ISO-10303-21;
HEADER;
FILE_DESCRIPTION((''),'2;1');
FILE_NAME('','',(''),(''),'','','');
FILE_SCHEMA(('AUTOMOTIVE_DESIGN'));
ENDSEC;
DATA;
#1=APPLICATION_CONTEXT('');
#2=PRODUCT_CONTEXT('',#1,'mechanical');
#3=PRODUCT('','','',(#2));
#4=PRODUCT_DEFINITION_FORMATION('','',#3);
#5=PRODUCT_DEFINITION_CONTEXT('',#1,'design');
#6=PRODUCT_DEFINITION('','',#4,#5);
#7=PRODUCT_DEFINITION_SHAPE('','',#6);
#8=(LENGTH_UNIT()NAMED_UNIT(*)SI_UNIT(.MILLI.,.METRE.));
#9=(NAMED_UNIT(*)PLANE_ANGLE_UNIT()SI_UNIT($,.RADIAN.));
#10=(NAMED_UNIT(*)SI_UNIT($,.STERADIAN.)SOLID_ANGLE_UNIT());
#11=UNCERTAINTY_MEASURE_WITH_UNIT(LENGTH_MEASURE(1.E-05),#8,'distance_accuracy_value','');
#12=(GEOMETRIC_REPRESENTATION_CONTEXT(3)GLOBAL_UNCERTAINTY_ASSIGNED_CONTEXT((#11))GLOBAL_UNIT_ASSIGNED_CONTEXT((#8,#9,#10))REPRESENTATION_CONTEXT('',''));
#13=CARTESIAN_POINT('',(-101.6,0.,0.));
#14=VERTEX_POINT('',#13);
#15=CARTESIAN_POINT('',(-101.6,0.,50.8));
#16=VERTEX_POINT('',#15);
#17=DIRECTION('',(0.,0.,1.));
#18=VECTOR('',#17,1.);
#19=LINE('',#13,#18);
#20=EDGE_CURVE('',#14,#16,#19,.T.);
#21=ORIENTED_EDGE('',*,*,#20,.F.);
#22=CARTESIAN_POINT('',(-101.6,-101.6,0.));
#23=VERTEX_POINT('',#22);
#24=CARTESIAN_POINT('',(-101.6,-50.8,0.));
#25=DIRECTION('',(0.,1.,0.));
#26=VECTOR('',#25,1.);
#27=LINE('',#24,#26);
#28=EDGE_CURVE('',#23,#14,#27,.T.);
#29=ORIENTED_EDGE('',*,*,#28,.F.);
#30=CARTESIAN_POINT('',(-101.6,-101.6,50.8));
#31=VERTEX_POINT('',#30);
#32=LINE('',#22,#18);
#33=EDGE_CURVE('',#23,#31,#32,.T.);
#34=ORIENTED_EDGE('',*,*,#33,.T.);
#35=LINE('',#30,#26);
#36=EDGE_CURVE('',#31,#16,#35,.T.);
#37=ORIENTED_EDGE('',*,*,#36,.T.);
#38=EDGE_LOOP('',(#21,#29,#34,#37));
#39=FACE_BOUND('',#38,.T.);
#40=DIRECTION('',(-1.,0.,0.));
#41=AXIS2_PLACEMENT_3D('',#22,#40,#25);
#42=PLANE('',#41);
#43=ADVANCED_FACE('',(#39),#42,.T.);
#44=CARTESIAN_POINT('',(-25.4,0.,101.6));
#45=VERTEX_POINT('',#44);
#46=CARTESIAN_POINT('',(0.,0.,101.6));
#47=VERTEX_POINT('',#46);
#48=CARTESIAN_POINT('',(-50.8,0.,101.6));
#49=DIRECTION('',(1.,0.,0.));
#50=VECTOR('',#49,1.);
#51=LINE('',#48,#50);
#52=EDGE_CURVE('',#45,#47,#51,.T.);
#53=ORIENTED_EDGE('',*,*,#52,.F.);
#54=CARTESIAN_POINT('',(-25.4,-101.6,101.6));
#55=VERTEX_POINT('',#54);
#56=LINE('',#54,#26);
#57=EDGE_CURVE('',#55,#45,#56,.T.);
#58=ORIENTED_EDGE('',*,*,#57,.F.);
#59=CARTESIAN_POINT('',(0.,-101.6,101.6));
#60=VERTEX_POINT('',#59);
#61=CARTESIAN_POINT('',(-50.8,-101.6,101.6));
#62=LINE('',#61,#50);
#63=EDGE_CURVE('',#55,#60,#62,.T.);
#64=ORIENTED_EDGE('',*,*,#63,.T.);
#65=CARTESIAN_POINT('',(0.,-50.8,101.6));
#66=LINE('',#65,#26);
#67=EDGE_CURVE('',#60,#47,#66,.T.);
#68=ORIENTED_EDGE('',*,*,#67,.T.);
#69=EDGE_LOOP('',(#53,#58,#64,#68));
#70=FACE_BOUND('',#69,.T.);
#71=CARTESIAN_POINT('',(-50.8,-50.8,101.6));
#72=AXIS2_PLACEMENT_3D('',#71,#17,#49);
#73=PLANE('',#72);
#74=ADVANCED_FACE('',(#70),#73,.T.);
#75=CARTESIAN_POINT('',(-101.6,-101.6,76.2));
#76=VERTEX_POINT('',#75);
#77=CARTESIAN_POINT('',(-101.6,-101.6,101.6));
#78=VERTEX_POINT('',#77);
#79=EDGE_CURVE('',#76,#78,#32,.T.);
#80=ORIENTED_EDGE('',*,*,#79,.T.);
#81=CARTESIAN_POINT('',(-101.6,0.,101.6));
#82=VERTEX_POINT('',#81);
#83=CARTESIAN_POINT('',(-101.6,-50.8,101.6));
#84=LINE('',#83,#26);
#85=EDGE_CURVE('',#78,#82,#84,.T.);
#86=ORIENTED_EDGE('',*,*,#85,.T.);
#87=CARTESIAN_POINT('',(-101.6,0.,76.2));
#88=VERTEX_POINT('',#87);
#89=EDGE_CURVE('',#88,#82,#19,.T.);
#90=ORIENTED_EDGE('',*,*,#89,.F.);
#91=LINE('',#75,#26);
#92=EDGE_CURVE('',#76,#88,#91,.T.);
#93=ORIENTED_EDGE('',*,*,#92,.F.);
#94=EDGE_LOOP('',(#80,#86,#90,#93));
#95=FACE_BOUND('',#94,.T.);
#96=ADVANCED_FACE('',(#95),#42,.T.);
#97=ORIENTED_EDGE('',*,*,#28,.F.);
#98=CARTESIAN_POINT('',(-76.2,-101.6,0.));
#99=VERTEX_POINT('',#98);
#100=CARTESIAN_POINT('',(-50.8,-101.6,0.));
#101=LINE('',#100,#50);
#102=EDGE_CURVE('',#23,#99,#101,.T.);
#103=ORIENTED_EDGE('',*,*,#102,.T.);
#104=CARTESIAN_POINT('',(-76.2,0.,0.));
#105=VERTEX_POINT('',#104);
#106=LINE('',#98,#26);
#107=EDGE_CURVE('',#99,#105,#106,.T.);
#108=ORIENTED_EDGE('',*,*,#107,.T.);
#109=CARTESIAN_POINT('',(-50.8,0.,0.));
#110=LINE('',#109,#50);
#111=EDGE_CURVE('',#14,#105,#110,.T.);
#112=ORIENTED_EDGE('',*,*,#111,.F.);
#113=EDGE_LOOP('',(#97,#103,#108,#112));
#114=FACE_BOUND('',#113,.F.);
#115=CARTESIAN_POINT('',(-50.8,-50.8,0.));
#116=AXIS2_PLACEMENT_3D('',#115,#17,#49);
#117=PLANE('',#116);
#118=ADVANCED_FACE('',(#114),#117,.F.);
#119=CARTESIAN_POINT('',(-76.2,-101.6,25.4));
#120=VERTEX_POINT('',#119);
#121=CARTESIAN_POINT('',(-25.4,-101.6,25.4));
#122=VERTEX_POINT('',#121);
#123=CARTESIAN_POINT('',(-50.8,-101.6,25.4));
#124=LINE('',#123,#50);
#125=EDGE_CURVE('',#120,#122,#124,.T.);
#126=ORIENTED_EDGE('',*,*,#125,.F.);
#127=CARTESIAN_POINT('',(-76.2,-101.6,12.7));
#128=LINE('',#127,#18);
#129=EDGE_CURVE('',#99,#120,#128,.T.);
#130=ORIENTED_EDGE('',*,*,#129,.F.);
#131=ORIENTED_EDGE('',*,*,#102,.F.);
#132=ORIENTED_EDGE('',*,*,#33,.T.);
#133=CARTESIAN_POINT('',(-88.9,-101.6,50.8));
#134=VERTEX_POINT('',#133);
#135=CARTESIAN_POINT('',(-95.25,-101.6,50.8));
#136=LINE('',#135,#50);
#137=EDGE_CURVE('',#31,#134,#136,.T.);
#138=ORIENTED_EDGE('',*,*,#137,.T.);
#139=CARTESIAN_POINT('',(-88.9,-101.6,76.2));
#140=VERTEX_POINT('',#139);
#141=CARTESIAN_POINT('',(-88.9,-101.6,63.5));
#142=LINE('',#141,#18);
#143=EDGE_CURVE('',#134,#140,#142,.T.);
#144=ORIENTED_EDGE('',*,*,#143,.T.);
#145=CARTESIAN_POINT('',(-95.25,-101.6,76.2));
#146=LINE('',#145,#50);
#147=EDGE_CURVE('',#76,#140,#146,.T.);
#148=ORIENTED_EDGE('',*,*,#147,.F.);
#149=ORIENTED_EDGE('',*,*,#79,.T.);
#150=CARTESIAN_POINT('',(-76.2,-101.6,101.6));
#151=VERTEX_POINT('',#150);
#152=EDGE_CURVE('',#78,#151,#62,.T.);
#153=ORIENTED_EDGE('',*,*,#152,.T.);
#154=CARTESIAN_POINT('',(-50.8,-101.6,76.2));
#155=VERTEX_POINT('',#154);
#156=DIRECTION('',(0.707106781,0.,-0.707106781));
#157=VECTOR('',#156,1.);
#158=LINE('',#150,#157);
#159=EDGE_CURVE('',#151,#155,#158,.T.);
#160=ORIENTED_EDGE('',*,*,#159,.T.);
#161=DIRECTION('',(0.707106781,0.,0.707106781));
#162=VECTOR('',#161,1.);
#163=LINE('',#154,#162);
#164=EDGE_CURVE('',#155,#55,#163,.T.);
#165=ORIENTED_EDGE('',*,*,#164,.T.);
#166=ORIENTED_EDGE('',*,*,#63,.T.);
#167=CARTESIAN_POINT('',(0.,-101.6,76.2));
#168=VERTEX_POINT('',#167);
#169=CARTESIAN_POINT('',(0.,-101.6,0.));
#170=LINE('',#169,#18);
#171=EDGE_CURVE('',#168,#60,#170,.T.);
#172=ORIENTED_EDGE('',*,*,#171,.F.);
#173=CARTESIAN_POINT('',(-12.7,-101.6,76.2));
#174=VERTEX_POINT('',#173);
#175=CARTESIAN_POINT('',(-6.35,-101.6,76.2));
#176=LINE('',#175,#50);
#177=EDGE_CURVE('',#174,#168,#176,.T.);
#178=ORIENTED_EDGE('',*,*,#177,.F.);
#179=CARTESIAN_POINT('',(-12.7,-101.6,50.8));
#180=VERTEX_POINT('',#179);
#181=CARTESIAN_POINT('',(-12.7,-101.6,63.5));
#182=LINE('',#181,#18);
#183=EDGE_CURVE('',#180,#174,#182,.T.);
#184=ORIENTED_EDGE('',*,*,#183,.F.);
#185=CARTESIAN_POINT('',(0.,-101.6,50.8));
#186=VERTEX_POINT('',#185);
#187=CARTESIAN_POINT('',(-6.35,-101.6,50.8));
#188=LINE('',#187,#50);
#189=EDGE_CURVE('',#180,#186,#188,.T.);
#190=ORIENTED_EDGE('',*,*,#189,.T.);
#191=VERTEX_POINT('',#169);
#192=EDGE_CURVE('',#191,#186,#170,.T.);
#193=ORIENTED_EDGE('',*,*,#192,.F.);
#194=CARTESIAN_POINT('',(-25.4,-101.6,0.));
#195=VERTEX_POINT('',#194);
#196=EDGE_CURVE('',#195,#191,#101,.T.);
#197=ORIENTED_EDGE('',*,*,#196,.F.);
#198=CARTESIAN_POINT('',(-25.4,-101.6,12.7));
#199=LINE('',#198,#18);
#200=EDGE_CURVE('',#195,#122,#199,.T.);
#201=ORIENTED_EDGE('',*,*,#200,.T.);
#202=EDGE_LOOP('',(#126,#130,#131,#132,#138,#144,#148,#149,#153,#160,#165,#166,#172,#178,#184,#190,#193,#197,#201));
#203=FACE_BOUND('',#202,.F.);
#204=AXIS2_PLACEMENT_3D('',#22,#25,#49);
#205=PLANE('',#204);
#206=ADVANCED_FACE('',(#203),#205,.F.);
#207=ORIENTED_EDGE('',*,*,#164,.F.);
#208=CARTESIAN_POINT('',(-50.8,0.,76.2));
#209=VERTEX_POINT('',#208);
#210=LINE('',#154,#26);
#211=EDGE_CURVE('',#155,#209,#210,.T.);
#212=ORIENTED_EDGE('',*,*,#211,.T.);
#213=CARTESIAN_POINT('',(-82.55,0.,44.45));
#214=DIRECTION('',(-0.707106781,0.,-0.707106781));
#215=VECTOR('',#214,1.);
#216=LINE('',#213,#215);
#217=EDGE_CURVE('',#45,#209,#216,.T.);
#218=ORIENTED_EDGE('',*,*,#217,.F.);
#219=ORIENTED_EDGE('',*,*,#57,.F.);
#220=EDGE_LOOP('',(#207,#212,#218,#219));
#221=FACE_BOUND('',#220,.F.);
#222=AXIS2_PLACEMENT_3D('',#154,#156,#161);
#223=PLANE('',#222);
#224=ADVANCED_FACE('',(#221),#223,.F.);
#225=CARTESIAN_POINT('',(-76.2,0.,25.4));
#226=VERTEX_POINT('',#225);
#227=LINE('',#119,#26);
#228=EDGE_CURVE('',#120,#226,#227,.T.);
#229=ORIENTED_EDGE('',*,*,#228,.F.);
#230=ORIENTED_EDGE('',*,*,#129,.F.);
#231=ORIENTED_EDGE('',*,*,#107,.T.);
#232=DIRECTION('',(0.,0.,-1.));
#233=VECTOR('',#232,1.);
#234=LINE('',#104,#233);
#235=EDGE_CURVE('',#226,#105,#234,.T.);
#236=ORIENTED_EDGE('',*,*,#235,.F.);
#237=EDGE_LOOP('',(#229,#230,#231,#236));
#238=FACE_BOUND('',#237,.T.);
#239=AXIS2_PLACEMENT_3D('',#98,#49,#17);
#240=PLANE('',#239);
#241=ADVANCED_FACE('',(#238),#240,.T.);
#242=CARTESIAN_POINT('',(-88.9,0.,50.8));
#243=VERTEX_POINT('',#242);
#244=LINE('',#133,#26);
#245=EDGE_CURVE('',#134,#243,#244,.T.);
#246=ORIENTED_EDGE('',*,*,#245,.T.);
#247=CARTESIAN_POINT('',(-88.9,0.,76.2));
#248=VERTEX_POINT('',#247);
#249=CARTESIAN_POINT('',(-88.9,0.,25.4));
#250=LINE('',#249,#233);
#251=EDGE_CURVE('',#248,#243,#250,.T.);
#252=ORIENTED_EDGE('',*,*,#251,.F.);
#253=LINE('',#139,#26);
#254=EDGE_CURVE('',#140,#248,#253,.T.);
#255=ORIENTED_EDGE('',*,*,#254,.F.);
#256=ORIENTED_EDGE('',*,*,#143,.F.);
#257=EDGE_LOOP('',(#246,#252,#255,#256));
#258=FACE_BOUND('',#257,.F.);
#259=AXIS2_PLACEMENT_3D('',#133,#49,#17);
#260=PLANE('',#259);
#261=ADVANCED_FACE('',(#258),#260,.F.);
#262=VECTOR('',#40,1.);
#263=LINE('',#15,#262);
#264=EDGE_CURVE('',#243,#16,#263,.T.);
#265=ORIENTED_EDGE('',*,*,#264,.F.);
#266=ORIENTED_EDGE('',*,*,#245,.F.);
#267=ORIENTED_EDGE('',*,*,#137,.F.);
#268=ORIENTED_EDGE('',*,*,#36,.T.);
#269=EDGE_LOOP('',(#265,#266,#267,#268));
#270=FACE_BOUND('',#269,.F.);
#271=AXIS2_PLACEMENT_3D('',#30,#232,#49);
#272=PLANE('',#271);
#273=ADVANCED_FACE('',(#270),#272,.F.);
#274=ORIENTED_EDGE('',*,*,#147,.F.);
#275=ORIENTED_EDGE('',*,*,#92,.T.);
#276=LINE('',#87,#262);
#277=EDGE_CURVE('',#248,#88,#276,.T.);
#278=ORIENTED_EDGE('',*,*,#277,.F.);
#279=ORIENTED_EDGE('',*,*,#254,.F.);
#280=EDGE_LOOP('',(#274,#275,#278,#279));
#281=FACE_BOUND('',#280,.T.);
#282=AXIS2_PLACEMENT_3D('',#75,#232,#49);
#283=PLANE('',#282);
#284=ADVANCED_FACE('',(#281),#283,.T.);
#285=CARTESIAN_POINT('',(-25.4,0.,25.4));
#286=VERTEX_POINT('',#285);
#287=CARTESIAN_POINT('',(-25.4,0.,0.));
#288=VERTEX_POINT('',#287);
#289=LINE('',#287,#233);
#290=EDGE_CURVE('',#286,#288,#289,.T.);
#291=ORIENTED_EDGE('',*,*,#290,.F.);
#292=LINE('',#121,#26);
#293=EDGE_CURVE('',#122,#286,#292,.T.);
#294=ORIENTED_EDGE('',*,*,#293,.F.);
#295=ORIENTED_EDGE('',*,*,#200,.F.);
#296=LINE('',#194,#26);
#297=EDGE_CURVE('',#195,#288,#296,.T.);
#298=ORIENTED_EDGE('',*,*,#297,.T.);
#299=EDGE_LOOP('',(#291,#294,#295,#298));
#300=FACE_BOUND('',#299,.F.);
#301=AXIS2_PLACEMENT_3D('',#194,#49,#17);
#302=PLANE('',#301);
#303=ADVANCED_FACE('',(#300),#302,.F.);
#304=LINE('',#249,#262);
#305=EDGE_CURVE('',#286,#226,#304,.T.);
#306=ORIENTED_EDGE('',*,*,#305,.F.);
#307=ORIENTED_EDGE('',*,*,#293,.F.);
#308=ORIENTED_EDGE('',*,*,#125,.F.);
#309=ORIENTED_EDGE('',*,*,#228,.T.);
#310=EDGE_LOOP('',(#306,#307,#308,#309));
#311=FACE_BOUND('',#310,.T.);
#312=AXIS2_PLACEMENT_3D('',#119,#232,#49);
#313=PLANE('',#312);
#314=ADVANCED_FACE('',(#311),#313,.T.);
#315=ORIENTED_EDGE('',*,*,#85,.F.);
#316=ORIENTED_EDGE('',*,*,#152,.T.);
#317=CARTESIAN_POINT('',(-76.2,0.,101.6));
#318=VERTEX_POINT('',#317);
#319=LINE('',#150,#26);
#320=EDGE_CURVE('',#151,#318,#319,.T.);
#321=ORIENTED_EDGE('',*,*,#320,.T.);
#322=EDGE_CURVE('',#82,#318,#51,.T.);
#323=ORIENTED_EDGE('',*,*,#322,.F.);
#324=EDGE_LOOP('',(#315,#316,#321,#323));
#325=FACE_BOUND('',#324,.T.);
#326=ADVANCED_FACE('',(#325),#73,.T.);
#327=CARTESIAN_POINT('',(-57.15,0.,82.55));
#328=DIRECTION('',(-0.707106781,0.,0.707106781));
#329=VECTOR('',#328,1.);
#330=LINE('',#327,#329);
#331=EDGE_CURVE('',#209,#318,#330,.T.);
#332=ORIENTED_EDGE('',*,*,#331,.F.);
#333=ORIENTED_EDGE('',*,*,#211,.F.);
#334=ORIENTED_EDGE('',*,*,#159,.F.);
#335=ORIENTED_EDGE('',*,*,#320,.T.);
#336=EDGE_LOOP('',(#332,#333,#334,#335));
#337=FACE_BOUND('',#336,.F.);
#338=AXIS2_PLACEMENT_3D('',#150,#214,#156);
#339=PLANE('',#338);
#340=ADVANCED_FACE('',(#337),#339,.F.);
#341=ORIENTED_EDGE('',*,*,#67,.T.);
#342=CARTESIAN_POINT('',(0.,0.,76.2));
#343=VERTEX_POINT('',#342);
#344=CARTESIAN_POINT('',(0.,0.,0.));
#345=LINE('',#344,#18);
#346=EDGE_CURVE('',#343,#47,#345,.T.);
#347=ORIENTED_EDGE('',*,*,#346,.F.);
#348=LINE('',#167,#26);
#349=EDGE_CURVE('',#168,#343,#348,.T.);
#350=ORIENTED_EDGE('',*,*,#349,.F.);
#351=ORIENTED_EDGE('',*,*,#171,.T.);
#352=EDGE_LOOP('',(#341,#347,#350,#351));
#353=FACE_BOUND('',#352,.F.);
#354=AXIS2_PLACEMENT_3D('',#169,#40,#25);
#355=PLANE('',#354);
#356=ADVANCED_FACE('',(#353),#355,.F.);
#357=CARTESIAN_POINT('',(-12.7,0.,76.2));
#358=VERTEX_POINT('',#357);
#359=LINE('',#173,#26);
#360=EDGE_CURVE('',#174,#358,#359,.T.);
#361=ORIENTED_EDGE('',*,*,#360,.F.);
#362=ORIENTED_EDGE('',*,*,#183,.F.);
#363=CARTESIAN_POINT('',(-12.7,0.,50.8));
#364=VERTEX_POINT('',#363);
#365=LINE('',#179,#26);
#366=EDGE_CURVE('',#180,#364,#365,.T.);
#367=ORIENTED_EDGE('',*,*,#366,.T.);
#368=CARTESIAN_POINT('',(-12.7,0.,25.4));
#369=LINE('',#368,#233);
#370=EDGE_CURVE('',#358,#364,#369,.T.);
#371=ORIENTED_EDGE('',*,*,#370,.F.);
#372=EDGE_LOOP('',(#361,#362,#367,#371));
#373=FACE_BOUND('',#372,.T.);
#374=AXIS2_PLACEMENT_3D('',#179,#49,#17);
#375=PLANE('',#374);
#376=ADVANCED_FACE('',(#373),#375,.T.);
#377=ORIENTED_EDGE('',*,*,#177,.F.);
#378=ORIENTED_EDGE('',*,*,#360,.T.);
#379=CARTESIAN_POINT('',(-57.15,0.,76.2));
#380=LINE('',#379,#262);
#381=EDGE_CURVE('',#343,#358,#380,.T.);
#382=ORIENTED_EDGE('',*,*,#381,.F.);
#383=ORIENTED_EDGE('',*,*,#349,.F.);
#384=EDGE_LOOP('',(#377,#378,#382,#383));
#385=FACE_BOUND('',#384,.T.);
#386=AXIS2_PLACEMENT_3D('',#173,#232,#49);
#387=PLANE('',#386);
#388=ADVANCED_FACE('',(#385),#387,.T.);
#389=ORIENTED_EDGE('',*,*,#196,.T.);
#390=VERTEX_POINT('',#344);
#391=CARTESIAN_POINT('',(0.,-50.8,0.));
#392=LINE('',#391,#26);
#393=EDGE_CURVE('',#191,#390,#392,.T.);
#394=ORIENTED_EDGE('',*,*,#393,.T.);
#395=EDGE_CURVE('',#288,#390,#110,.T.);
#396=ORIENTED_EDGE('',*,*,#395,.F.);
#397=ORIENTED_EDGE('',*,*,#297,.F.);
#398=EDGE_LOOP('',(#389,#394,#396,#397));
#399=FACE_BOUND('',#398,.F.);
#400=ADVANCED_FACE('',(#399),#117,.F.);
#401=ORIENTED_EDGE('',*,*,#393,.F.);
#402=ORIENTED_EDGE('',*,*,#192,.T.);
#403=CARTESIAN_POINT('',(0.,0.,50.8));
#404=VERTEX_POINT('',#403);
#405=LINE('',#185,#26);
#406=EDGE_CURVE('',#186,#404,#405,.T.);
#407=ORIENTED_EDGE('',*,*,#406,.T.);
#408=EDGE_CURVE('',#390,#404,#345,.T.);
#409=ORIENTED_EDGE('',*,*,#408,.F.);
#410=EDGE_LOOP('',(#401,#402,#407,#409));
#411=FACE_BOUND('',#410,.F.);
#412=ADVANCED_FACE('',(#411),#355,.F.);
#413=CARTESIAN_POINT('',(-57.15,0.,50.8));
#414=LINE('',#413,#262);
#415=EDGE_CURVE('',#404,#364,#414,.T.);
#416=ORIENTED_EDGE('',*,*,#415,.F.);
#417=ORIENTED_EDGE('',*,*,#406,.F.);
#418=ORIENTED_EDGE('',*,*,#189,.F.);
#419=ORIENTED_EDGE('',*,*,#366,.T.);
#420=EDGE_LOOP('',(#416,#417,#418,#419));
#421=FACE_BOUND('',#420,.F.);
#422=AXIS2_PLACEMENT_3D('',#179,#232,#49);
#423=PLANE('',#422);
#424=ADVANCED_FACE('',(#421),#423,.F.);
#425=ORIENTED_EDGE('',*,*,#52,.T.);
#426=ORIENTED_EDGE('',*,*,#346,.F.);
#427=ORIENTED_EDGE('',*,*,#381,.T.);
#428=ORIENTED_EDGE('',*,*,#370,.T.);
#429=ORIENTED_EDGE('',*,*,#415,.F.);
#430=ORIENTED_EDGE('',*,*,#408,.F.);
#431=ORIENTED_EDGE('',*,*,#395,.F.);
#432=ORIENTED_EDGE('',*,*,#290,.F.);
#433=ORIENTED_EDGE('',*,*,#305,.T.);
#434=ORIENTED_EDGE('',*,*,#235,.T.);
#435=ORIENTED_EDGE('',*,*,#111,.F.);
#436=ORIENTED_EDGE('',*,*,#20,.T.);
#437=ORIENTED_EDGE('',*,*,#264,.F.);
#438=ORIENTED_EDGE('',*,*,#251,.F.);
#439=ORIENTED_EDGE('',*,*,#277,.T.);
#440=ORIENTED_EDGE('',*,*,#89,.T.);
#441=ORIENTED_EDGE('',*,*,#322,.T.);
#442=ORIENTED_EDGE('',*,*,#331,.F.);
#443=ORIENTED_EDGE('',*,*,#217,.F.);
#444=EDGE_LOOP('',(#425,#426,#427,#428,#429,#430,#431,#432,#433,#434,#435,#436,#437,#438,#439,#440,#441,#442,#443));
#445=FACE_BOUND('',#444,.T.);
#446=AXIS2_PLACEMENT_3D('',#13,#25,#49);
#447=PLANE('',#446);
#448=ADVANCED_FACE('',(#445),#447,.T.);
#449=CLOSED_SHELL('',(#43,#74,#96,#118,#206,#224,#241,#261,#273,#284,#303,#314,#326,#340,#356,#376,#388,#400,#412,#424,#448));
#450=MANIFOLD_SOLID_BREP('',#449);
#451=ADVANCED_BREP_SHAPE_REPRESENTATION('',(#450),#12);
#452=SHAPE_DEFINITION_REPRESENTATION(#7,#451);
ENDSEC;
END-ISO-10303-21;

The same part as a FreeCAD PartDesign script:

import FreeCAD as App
import Part
import Sketcher

V = App.Vector
Q = App.Units.Quantity


def add_polygon(sketch, points):
    """Adds a closed chain of lines whose ends are joined by coincident constraints."""
    first, n = sketch.GeometryCount, len(points)
    for a, b in zip(points, points[1:] + points[:1]):
        sketch.addGeometry(Part.LineSegment(App.Vector(*a, 0), App.Vector(*b, 0)), False)
    for i in range(n):
        sketch.addConstraint(Sketcher.Constraint("Coincident", first + i, 2, first + (i + 1) % n, 1))

doc = App.newDocument("Part")
params = doc.addObject("Spreadsheet::Sheet", "Params")
for row, (alias, value) in enumerate([
    ("sketch1_width", "4 in"),
    ("pad1_length", "4 in"),
    ("sketch2_width", "2 in"),
    ("pocket1_length", "5.2 in"),
    ("sketch3_height", "1 in"),
    ("sketch3_width", "0.5 in"),
    ("pocket2_length", "6.86 in"),
    ("sketch4_width", "2 in"),
    ("sketch4_height", "1 in"),
    ("pocket3_length", "11.6 in"),
], start=1):
    params.set(f"A{row}", alias)
    params.set(f"B{row}", "=" + value)
    params.setAlias(f"B{row}", alias)

body = doc.addObject("PartDesign::Body", "Body")

sketch1 = doc.addObject("Sketcher::SketchObject", "Sketch")
body.addObject(sketch1)
sketch1.AttachmentSupport = (doc.XY_Plane, [""])
sketch1.MapMode = "FlatFace"
add_polygon(sketch1, [(-102, 0), (-102, -102), (0, -102), (0, 0)])
sketch1.addConstraint(Sketcher.Constraint("Vertical", 0))
sketch1.addConstraint(Sketcher.Constraint("Horizontal", 1))
sketch1.addConstraint(Sketcher.Constraint("Vertical", 2))
sketch1.addConstraint(Sketcher.Constraint("Horizontal", 3))
sketch1.addConstraint(Sketcher.Constraint("Coincident", 2, 2, -1, 1))
sketch1.addConstraint(Sketcher.Constraint("Equal", 3, 0))
sketch1.addConstraint(Sketcher.Constraint("DistanceX", 1, 1, 1, 2, Q("4 in")))
sketch1.setExpression("Constraints[10]", "Params.sketch1_width")
pad1 = doc.addObject("PartDesign::Pad", "Pad")
body.addObject(pad1)
pad1.Profile = sketch1
pad1.setExpression("Length", "Params.pad1_length")

sketch2 = doc.addObject("Sketcher::SketchObject", "Sketch001")
body.addObject(sketch2)
sketch2.AttachmentSupport = (doc.XZ_Plane, [""])
sketch2.MapMode = "FlatFace"
sketch2.AttachmentOffset = App.Placement(V(0, 0, 4 * 25.4), App.Rotation())
add_polygon(sketch2, [(-76, 102), (-51, 76), (-25, 102)])
sketch2.addConstraint(Sketcher.Constraint("Horizontal", 2))
sketch2.addConstraint(Sketcher.Constraint("Perpendicular", 0, 1))
sketch2.addConstraint(Sketcher.Constraint("Equal", 0, 1))
sketch2.addConstraint(Sketcher.Constraint("DistanceX", 2, 2, 2, 1, Q("2 in")))
sketch2.addConstraint(Sketcher.Constraint("DistanceX", 0, 2, -1, 1, Q("2 in")))
sketch2.addConstraint(Sketcher.Constraint("DistanceY", -1, 1, 0, 2, Q("3 in")))
sketch2.setExpression("Constraints[6]", "Params.sketch2_width")
pocket1 = doc.addObject("PartDesign::Pocket", "Pocket")
body.addObject(pocket1)
pocket1.Profile = sketch2
pocket1.setExpression("Length", "Params.pocket1_length")

sketch3 = doc.addObject("Sketcher::SketchObject", "Sketch002")
body.addObject(sketch3)
sketch3.AttachmentSupport = (doc.XZ_Plane, [""])
sketch3.MapMode = "FlatFace"
sketch3.AttachmentOffset = App.Placement(V(0, 0, 4 * 25.4), App.Rotation())
add_polygon(sketch3, [(-13, 76), (-13, 51), (0, 51), (0, 76)])
add_polygon(sketch3, [(-102, 76), (-102, 51), (-89, 51), (-89, 76)])
sketch3.addConstraint(Sketcher.Constraint("Vertical", 0))
sketch3.addConstraint(Sketcher.Constraint("Horizontal", 1))
sketch3.addConstraint(Sketcher.Constraint("Vertical", 2))
sketch3.addConstraint(Sketcher.Constraint("Horizontal", 3))
sketch3.addConstraint(Sketcher.Constraint("Vertical", 4))
sketch3.addConstraint(Sketcher.Constraint("Horizontal", 5))
sketch3.addConstraint(Sketcher.Constraint("Vertical", 6))
sketch3.addConstraint(Sketcher.Constraint("Horizontal", 7))
sketch3.addConstraint(Sketcher.Constraint("PointOnObject", 1, 2, -2))
sketch3.addConstraint(Sketcher.Constraint("Horizontal", 1, 2, 4, 2))
sketch3.addConstraint(Sketcher.Constraint("Horizontal", 3, 2, 6, 2))
sketch3.addConstraint(Sketcher.Constraint("Equal", 3, 5))
sketch3.addConstraint(Sketcher.Constraint("DistanceY", 0, 2, 0, 1, Q("1 in")))
sketch3.addConstraint(Sketcher.Constraint("DistanceX", 1, 1, 1, 2, Q("0.5 in")))
sketch3.addConstraint(Sketcher.Constraint("DistanceY", -1, 1, 0, 2, Q("2 in")))
sketch3.addConstraint(Sketcher.Constraint("DistanceX", 4, 2, -1, 1, Q("4 in")))
sketch3.setExpression("Constraints[20]", "Params.sketch3_height")
sketch3.setExpression("Constraints[21]", "Params.sketch3_width")
pocket2 = doc.addObject("PartDesign::Pocket", "Pocket001")
body.addObject(pocket2)
pocket2.Profile = sketch3
pocket2.setExpression("Length", "Params.pocket2_length")

sketch4 = doc.addObject("Sketcher::SketchObject", "Sketch003")
body.addObject(sketch4)
sketch4.AttachmentSupport = (doc.XZ_Plane, [""])
sketch4.MapMode = "FlatFace"
sketch4.AttachmentOffset = App.Placement(V(0, 0, 4 * 25.4), App.Rotation())
add_polygon(sketch4, [(-76, 25), (-76, 0), (-25, 0), (-25, 25)])
sketch4.addConstraint(Sketcher.Constraint("Vertical", 0))
sketch4.addConstraint(Sketcher.Constraint("Horizontal", 1))
sketch4.addConstraint(Sketcher.Constraint("Vertical", 2))
sketch4.addConstraint(Sketcher.Constraint("Horizontal", 3))
sketch4.addConstraint(Sketcher.Constraint("PointOnObject", 0, 2, -1))
sketch4.addConstraint(Sketcher.Constraint("DistanceX", 1, 1, 1, 2, Q("2 in")))
sketch4.addConstraint(Sketcher.Constraint("DistanceY", 0, 2, 0, 1, Q("1 in")))
sketch4.addConstraint(Sketcher.Constraint("DistanceX", 0, 2, -1, 1, Q("3 in")))
sketch4.setExpression("Constraints[9]", "Params.sketch4_width")
sketch4.setExpression("Constraints[10]", "Params.sketch4_height")
pocket3 = doc.addObject("PartDesign::Pocket", "Pocket002")
body.addObject(pocket3)
pocket3.Profile = sketch4
pocket3.setExpression("Length", "Params.pocket3_length")

doc.recompute()
